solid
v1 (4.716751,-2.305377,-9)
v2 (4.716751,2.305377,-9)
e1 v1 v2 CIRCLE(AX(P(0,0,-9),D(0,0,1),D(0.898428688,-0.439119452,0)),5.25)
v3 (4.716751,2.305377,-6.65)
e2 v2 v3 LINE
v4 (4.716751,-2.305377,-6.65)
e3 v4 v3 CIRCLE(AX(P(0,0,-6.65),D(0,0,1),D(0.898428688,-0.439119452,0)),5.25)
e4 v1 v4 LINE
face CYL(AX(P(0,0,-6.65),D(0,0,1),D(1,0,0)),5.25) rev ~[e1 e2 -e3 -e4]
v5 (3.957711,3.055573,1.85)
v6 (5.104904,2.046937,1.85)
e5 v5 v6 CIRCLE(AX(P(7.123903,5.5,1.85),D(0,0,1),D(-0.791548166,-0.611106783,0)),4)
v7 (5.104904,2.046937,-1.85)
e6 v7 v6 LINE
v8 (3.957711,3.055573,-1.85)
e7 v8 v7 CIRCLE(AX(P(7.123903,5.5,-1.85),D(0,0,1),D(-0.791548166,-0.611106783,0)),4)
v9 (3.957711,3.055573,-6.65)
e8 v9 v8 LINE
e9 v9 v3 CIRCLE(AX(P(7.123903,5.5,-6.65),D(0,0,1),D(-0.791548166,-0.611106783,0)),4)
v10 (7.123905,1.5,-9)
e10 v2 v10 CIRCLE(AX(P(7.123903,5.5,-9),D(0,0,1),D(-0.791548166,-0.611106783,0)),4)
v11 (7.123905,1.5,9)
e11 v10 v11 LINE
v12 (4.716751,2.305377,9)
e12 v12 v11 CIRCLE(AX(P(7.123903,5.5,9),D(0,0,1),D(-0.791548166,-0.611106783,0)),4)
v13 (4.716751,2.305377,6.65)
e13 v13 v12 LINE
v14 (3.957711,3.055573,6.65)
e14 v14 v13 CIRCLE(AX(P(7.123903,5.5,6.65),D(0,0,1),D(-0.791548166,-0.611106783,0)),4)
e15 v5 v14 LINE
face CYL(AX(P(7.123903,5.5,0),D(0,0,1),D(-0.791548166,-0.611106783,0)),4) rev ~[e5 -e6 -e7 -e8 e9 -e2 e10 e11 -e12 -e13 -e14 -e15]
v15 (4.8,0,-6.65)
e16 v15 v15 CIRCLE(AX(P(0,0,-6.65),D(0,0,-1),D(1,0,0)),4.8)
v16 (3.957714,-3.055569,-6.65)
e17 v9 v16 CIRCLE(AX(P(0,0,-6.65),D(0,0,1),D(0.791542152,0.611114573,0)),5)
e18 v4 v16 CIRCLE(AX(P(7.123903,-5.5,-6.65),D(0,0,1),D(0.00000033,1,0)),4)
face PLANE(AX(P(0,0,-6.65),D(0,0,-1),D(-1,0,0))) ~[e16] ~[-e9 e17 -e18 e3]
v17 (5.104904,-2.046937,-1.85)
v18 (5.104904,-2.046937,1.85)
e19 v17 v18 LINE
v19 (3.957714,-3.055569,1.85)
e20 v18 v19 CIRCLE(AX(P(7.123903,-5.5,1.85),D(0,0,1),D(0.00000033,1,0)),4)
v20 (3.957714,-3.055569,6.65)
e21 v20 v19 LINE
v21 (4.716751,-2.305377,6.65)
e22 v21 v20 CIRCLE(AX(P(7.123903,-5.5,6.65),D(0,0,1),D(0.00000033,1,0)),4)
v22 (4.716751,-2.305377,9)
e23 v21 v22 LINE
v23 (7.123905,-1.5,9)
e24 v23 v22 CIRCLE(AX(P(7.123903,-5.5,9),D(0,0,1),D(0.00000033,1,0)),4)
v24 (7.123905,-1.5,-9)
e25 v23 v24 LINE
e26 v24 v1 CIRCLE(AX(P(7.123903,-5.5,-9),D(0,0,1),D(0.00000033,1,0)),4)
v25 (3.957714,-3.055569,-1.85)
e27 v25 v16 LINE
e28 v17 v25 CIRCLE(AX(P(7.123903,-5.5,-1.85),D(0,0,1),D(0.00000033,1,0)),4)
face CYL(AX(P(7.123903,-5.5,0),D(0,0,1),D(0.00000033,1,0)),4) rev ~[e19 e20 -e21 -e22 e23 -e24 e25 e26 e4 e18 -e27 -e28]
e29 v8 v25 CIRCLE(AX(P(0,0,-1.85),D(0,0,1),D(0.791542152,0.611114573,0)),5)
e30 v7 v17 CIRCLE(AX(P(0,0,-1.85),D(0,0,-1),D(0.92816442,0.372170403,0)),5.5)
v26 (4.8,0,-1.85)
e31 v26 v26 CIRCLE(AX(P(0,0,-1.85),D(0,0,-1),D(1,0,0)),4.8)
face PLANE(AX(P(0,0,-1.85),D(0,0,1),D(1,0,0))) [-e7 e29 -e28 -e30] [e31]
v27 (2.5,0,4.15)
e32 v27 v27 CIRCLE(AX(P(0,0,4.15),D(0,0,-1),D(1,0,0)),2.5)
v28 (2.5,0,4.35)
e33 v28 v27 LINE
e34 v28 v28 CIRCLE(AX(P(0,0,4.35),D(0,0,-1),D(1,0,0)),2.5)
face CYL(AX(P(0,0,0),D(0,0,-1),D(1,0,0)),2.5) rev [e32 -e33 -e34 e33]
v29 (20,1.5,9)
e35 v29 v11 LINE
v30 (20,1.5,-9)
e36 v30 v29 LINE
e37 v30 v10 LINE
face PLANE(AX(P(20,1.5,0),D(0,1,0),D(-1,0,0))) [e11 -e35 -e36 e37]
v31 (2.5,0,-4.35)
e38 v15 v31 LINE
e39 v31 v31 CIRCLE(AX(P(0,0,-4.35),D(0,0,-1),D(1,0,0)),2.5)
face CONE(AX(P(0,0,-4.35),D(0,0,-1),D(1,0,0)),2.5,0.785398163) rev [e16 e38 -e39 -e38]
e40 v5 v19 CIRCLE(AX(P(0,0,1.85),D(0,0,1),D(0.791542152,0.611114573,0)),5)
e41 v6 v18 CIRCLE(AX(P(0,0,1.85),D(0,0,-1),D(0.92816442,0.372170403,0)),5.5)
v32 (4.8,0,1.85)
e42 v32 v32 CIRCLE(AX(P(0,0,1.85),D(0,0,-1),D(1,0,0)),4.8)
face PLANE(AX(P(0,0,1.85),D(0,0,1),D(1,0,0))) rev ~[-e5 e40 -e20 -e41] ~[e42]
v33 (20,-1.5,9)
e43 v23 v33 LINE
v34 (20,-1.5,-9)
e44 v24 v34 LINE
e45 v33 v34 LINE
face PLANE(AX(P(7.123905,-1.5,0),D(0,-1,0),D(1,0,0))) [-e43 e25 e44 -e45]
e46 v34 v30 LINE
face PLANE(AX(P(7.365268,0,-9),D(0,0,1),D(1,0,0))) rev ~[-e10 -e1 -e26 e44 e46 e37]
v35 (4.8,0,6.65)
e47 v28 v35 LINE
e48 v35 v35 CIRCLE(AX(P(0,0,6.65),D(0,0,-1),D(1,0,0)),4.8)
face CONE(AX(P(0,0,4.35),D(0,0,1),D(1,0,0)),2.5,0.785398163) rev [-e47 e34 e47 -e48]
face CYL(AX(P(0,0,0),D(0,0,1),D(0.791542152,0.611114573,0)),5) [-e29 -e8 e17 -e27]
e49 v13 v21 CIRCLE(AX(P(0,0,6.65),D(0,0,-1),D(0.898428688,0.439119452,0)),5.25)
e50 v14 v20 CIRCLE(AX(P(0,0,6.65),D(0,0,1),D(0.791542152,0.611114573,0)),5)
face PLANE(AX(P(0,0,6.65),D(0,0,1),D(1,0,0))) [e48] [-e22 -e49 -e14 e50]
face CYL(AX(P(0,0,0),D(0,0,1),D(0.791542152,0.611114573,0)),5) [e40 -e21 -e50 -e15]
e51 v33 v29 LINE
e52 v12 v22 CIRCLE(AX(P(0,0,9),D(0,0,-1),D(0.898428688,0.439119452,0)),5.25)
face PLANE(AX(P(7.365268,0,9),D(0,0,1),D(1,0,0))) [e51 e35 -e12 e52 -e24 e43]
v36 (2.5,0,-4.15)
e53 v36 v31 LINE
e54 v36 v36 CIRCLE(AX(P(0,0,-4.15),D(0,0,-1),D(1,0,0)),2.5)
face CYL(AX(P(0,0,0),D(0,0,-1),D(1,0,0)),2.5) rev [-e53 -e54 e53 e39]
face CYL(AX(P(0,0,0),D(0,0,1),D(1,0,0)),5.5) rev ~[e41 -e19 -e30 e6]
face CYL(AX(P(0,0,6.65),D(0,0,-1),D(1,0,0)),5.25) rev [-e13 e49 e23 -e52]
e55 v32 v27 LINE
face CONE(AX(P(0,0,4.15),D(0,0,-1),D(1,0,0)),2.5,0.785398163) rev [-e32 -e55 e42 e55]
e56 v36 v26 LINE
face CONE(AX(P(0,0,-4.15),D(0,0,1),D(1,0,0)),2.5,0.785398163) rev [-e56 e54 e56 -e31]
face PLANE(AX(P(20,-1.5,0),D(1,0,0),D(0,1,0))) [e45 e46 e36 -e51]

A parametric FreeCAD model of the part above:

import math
import FreeCAD as App
import Part
import Sketcher
Q = App.Units.Quantity


def edges_at(feature, points):
    """Names of the edges that pass closest to the given points."""
    edges = feature.Shape.Edges
    near = lambda p: min(range(len(edges)), key=lambda i: edges[i].distToShape(Part.Vertex(*p))[0])
    return sorted({f"Edge{near(p) + 1}" for p in points})

doc = App.newDocument("Part")
body = doc.addObject("PartDesign::Body", "Body")

# Sketch on XY plane
sketch1 = doc.addObject("Sketcher::SketchObject", "Sketch")
body.addObject(sketch1)
sketch1.AttachmentSupport = (doc.XY_Plane, [""])
sketch1.MapMode = "FlatFace"
sketch1.addGeometry(Part.LineSegment(App.Vector(20, -1.5, 0), App.Vector(20, 1.5, 0)), False)
sketch1.addGeometry(Part.LineSegment(App.Vector(20, 1.5, 0), App.Vector(7.1, 1.5, 0)), False)
sketch1.addGeometry(Part.ArcOfCircle(Part.Circle(App.Vector(7.1, 5.5, 0), App.Vector(0, 0, 1), 4), math.radians(-142), math.radians(-90)), False)
sketch1.addGeometry(Part.ArcOfCircle(Part.Circle(App.Vector(0, 0, 0), App.Vector(0, 0, 1), 5), math.radians(38), math.radians(322)), False)
sketch1.addGeometry(Part.ArcOfCircle(Part.Circle(App.Vector(7.1, -5.5, 0), App.Vector(0, 0, 1), 4), math.radians(90), math.radians(142)), False)
sketch1.addGeometry(Part.LineSegment(App.Vector(7.1, -1.5, 0), App.Vector(20, -1.5, 0)), False)
sketch1.addGeometry(Part.Circle(App.Vector(0, 0, 0), App.Vector(0, 0, 1), 2.5), False)
sketch1.addConstraint(Sketcher.Constraint("Coincident", 0, 2, 1, 1))
sketch1.addConstraint(Sketcher.Constraint("Tangent", 1, 2, 2, 2))
sketch1.addConstraint(Sketcher.Constraint("Coincident", 2, 1, 3, 1))
sketch1.addConstraint(Sketcher.Constraint("Coincident", 3, 2, 4, 2))
sketch1.addConstraint(Sketcher.Constraint("Tangent", 4, 1, 5, 1))
sketch1.addConstraint(Sketcher.Constraint("Coincident", 5, 2, 0, 1))
sketch1.addConstraint(Sketcher.Constraint("Vertical", 0))
sketch1.addConstraint(Sketcher.Constraint("Horizontal", 1))
sketch1.addConstraint(Sketcher.Constraint("Horizontal", 5))
sketch1.addConstraint(Sketcher.Constraint("Coincident", 3, 3, -1, 1))
sketch1.addConstraint(Sketcher.Constraint("Coincident", 6, 3, -1, 1))
sketch1.addConstraint(Sketcher.Constraint("Equal", 2, 4))
sketch1.addConstraint(Sketcher.Constraint("Vertical", 2, 3, 4, 3))
sketch1.addConstraint(Sketcher.Constraint("Diameter", 6, Q("5 mm")))
sketch1.addConstraint(Sketcher.Constraint("Radius", 2, Q("4 mm")))
sketch1.addConstraint(Sketcher.Constraint("Radius", 3, Q("5 mm")))
sketch1.addConstraint(Sketcher.Constraint("DistanceY", 0, 1, 0, 2, Q("3 mm")))
sketch1.addConstraint(Sketcher.Constraint("DistanceX", -1, 1, 0, 2, Q("20 mm")))
sketch1.addConstraint(Sketcher.Constraint("DistanceX", -1, 1, 2, 1, Q("3.957711 mm")))
sketch1.addConstraint(Sketcher.Constraint("DistanceY", 3, 2, -1, 1, Q("3.055569 mm")))
pad1 = doc.addObject("PartDesign::Pad", "Pad")
body.addObject(pad1)
pad1.Profile = sketch1
pad1.Length = 18
pad1.Midplane = True

# Sketch on XY plane
sketch2 = doc.addObject("Sketcher::SketchObject", "Sketch001")
body.addObject(sketch2)
sketch2.AttachmentSupport = (doc.XY_Plane, [""])
sketch2.MapMode = "FlatFace"
sketch2.addGeometry(Part.Circle(App.Vector(0, 0, 0), App.Vector(0, 0, 1), 6), False)
sketch2.addConstraint(Sketcher.Constraint("Coincident", 0, 3, -1, 1))
sketch2.addConstraint(Sketcher.Constraint("Diameter", 0, Q("11 mm")))
pocket1 = doc.addObject("PartDesign::Pocket", "Pocket")
body.addObject(pocket1)
pocket1.Profile = sketch2
pocket1.Length = 3.7
pocket1.Midplane = True

# Sketch on XY plane
sketch3 = doc.addObject("Sketcher::SketchObject", "Sketch002")
body.addObject(sketch3)
sketch3.AttachmentSupport = (doc.XY_Plane, [""])
sketch3.MapMode = "FlatFace"
sketch3.AttachmentOffset = App.Placement(App.Vector(0, 0, 6.65), App.Rotation())
sketch3.addGeometry(Part.Circle(App.Vector(0, 0, 0), App.Vector(0, 0, 1), 5), False)
sketch3.addConstraint(Sketcher.Constraint("Coincident", 0, 3, -1, 1))
sketch3.addConstraint(Sketcher.Constraint("Diameter", 0, Q("10.5 mm")))
pocket2 = doc.addObject("PartDesign::Pocket", "Pocket001")
body.addObject(pocket2)
pocket2.Profile = sketch3
pocket2.Type = "ThroughAll"
pocket2.Reversed = True
doc.recompute()

mirrored = doc.addObject("PartDesign::Mirrored", "Mirrored")
body.addObject(mirrored)
mirrored.Originals = [pocket2]
mirrored.MirrorPlane = (doc.XY_Plane, [""])
body.Tip = mirrored
doc.recompute()

chamfer = doc.addObject("PartDesign::Chamfer", "Chamfer")
body.addObject(chamfer)
chamfer.Base = (mirrored, edges_at(mirrored, [
    (-2.5, 0, -6.65),
    (-2.5, 0, -1.85),
    (-2.5, 0, 6.65),
    (-2.5, 0, 1.85),
]))
chamfer.Size = 2.3

doc.recompute()
